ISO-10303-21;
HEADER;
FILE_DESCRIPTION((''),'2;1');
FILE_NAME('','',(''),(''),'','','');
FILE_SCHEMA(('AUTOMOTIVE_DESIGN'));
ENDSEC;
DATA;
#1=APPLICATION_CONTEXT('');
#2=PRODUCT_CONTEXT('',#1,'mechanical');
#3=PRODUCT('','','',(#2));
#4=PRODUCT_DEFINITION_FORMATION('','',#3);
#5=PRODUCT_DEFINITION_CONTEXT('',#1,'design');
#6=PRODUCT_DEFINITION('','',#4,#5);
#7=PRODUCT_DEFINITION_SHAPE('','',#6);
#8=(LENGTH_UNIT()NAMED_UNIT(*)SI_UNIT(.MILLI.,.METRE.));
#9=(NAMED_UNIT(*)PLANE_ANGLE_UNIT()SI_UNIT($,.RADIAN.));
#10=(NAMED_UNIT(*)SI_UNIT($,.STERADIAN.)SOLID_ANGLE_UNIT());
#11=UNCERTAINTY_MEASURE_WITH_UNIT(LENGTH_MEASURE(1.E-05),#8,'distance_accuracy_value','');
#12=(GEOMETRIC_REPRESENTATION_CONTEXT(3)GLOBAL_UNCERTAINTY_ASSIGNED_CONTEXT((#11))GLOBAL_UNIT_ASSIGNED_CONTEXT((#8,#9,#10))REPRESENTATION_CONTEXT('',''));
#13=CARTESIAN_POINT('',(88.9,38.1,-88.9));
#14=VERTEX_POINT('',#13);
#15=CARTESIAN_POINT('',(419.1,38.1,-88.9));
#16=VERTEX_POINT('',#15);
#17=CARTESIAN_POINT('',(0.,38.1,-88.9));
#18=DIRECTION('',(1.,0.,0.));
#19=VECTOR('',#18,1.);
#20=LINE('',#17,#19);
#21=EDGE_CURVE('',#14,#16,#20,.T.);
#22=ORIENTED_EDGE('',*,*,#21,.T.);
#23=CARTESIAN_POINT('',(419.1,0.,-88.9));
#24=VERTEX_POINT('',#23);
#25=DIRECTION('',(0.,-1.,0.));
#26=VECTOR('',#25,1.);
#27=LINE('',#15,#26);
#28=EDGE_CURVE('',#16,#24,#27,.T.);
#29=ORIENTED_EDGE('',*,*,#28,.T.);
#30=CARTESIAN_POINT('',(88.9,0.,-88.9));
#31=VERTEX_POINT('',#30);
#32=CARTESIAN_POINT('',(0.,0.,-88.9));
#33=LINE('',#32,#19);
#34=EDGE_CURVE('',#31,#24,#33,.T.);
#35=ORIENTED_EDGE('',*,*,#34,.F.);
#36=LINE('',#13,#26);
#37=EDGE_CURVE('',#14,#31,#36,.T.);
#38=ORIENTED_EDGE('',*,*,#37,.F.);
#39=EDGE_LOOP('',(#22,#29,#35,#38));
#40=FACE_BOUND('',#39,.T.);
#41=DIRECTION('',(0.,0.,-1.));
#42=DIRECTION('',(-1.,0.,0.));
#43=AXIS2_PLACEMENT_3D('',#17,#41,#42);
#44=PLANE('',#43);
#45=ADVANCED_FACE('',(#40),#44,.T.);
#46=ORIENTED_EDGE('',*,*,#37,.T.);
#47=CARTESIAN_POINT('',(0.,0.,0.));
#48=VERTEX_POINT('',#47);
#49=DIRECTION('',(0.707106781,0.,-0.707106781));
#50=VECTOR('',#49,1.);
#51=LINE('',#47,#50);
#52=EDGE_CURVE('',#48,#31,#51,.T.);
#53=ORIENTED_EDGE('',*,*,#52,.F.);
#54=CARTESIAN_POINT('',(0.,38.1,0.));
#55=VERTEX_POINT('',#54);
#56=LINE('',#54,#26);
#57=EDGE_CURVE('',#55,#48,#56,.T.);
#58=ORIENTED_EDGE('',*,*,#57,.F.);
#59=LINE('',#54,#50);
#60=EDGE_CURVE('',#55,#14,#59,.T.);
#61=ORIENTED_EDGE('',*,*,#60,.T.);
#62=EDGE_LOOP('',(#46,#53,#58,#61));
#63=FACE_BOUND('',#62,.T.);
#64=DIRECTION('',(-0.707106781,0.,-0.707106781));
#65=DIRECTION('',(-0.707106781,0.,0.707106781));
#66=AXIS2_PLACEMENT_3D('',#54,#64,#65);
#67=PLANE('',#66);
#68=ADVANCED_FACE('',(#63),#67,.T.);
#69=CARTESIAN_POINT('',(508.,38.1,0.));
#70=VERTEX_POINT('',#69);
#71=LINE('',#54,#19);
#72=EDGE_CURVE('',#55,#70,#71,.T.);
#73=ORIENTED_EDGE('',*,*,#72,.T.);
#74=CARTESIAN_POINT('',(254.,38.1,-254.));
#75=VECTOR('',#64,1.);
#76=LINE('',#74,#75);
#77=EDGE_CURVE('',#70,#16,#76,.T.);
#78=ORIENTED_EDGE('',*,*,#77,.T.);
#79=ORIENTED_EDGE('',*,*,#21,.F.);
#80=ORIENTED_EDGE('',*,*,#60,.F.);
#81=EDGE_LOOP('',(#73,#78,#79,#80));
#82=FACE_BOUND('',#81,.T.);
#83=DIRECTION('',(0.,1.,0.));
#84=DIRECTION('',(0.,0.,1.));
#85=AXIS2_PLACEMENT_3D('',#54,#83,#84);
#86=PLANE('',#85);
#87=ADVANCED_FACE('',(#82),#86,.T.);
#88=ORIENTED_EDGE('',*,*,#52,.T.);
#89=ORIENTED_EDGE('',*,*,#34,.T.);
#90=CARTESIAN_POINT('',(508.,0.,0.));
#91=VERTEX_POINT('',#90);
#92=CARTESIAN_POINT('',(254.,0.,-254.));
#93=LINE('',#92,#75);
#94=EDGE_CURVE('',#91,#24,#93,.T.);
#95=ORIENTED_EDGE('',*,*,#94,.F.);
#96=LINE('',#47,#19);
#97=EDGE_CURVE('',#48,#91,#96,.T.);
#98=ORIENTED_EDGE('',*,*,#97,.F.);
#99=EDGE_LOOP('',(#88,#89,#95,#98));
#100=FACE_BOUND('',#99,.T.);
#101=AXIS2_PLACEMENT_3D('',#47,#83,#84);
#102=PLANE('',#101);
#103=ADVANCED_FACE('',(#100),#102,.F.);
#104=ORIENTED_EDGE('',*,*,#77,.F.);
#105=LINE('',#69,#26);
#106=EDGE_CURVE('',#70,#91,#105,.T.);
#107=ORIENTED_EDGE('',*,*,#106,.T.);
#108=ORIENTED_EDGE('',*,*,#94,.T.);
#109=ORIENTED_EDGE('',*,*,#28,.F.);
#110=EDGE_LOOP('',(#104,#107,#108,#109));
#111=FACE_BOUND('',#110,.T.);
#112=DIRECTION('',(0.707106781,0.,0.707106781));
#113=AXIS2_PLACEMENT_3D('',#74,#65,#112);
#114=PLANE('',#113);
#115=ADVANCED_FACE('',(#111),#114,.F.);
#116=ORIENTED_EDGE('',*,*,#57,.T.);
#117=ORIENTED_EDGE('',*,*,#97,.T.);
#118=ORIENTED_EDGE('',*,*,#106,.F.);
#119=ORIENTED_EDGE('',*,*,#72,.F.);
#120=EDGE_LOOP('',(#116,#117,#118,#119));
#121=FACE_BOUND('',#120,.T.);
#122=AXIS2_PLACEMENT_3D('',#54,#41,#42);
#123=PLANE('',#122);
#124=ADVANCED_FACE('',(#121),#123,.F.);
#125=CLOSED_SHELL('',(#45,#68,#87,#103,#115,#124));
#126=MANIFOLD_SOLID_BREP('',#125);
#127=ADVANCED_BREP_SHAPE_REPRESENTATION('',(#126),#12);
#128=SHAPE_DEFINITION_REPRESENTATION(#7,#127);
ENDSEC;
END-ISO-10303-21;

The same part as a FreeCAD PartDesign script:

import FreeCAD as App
import Part
import Sketcher

V = App.Vector
Q = App.Units.Quantity

doc = App.newDocument("Part")
body = doc.addObject("PartDesign::Body", "Body")

sketch1 = doc.addObject("Sketcher::SketchObject", "Sketch")
body.addObject(sketch1)
sketch1.AttachmentSupport = (doc.XZ_Plane, [""])
sketch1.MapMode = "FlatFace"
sketch1.addGeometry(Part.LineSegment(V(88.9, -88.9, 0), V(0, 0, 0)), False)
sketch1.addGeometry(Part.LineSegment(V(0, 0, 0), V(508, 0, 0)), False)
sketch1.addGeometry(Part.LineSegment(V(508, 0, 0), V(419.1, -88.9, 0)), False)
sketch1.addGeometry(Part.LineSegment(V(419.1, -88.9, 0), V(88.9, -88.9, 0)), False)
sketch1.addConstraint(Sketcher.Constraint("Coincident", 0, 2, 1, 1))
sketch1.addConstraint(Sketcher.Constraint("Coincident", 1, 2, 2, 1))
sketch1.addConstraint(Sketcher.Constraint("Coincident", 2, 2, 3, 1))
sketch1.addConstraint(Sketcher.Constraint("Coincident", 3, 2, 0, 1))
sketch1.addConstraint(Sketcher.Constraint("Horizontal", 1))
sketch1.addConstraint(Sketcher.Constraint("Horizontal", 3))
sketch1.addConstraint(Sketcher.Constraint("Coincident", 0, 2, -1, 1))
sketch1.addConstraint(Sketcher.Constraint("Perpendicular", 0, 2))
sketch1.addConstraint(Sketcher.Constraint("Equal", 0, 2))
sketch1.addConstraint(Sketcher.Constraint("DistanceX", 1, 1, 1, 2, Q("20 in")))
sketch1.addConstraint(Sketcher.Constraint("DistanceX", 3, 2, 3, 1, Q("13 in")))
pad1 = doc.addObject("PartDesign::Pad", "Pad")
body.addObject(pad1)
pad1.Profile = sketch1
pad1.Length = Q("1.5 in")
pad1.Reversed = True

doc.recompute()
